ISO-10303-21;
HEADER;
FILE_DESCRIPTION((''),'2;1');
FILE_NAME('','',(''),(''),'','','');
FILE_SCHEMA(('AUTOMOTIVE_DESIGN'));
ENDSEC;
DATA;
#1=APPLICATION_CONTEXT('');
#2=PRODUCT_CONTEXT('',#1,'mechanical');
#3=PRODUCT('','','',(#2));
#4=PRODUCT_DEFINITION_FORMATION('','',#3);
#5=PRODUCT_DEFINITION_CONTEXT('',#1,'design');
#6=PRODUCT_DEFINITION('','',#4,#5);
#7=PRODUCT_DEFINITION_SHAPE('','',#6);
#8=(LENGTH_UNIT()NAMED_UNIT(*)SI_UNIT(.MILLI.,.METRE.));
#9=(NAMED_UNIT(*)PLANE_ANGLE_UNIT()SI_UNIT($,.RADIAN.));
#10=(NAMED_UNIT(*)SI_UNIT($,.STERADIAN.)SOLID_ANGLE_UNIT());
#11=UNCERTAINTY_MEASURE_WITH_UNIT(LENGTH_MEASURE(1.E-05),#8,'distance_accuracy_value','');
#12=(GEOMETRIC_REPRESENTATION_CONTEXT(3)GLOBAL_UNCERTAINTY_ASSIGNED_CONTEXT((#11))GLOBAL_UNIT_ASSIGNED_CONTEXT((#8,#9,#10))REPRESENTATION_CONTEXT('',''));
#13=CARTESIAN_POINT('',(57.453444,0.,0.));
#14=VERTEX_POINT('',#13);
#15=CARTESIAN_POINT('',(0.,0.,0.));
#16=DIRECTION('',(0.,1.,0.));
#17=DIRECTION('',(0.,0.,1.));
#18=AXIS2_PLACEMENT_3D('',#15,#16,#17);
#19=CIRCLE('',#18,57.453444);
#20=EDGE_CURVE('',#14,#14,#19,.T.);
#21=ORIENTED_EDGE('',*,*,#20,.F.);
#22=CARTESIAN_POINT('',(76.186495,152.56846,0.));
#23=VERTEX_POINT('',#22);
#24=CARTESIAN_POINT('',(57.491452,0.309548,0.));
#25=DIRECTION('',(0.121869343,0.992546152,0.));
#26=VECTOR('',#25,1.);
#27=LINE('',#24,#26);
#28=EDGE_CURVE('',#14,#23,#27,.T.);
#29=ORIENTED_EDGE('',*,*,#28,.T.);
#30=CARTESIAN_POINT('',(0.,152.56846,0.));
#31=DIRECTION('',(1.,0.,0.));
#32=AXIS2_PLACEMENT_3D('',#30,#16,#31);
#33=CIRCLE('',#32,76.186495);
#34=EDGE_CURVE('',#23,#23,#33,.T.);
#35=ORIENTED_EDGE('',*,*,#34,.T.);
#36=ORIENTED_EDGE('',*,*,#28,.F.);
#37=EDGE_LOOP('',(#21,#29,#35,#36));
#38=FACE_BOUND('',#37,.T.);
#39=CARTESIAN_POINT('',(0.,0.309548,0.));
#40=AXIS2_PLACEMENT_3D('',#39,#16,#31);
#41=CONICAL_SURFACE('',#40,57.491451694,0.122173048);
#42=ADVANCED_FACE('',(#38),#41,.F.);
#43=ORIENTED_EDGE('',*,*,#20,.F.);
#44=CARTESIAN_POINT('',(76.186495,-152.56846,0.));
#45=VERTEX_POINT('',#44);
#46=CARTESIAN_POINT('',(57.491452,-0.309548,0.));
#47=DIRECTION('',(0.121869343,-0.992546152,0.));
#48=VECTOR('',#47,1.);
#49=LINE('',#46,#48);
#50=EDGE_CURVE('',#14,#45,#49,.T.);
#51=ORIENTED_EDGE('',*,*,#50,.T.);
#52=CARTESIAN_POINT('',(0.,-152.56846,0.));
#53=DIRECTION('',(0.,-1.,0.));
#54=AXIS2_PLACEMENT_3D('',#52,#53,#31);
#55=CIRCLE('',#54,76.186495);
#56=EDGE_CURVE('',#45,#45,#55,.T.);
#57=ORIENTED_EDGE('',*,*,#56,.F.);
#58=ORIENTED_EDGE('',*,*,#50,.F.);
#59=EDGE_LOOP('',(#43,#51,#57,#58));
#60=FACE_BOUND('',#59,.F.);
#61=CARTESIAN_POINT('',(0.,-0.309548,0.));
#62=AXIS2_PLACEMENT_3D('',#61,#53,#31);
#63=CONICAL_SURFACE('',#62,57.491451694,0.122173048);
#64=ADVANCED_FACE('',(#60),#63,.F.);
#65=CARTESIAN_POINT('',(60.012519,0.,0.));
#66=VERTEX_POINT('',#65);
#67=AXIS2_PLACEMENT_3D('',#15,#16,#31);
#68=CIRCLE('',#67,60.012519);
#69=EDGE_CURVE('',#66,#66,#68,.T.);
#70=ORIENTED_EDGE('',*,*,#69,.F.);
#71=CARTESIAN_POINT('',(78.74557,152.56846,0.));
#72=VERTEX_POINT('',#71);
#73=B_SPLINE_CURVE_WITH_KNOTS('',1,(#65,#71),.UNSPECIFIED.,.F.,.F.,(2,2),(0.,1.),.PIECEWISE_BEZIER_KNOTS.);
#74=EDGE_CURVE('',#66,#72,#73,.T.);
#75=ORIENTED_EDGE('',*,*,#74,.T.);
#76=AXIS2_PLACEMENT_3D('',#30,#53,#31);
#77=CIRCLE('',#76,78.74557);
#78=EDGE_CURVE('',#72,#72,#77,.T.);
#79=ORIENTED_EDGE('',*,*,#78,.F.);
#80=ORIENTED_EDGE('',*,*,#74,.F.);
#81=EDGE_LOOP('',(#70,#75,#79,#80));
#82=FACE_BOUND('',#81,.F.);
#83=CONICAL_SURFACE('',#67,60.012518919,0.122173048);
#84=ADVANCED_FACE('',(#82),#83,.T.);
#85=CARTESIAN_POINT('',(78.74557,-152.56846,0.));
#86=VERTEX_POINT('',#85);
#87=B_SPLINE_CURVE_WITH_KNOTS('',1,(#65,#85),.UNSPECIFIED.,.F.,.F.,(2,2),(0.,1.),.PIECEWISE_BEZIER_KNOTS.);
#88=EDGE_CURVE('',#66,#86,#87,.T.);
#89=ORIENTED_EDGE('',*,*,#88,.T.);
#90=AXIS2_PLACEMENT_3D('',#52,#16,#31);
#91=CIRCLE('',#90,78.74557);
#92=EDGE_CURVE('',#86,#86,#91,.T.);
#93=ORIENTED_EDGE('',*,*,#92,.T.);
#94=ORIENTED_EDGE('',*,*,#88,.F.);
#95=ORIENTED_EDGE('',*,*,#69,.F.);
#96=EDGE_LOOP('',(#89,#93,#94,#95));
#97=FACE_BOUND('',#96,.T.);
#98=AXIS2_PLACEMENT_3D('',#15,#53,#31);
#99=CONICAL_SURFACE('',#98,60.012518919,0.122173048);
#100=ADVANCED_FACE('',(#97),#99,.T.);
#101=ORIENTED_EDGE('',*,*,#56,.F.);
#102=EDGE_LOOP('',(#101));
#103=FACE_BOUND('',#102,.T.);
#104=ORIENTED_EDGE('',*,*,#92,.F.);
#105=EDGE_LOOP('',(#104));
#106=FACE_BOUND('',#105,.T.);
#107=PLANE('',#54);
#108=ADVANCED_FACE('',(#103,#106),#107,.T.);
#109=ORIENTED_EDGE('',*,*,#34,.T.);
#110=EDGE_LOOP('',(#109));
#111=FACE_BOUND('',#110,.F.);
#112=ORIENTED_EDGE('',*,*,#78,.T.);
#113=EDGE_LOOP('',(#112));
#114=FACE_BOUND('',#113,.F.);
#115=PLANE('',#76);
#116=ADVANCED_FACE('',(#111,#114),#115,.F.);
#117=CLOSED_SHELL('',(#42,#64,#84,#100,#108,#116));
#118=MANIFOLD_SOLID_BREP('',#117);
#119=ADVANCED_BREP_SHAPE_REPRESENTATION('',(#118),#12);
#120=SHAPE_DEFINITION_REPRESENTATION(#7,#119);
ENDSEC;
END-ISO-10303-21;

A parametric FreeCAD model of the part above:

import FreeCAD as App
import Part
import Sketcher

V = App.Vector
Q = App.Units.Quantity


def faces_at(feature, points):
    """Names of the faces that lie closest to the given points."""
    faces = feature.Shape.Faces
    near = lambda p: min(range(len(faces)), key=lambda i: faces[i].distToShape(Part.Vertex(*p))[0])
    return sorted({f"Face{near(p) + 1}" for p in points})

doc = App.newDocument("Part")
body = doc.addObject("PartDesign::Body", "Body")

sketch1 = body.newObject("Sketcher::SketchObject", "Sketch")
sketch1.AttachmentSupport = (doc.getObject("XZ_Plane"), [""])
sketch1.MapMode = "FlatFace"
sketch1.addGeometry(Part.Circle(V(0, 0, 0), V(0, 0, 1), 60), False)
sketch1.addConstraint(Sketcher.Constraint("Coincident", 0, 3, -1, 1))
sketch1.addConstraint(Sketcher.Constraint("Diameter", 0, 120.025038))
pad1 = body.newObject("PartDesign::Pad", "Pad")
pad1.Profile = sketch1
pad1.Length = 305.136919
pad1.Midplane = True
pad1.TaperAngle = 7
doc.recompute()

thickness = body.newObject("PartDesign::Thickness", "Thickness")
thickness.Base = (pad1, faces_at(pad1, [(0, 152.568, 0), (0, -152.568, 0)]))
thickness.Value = Q("0.1 in")
thickness.Reversed = True
thickness.Join = "Intersection"

doc.recompute()
